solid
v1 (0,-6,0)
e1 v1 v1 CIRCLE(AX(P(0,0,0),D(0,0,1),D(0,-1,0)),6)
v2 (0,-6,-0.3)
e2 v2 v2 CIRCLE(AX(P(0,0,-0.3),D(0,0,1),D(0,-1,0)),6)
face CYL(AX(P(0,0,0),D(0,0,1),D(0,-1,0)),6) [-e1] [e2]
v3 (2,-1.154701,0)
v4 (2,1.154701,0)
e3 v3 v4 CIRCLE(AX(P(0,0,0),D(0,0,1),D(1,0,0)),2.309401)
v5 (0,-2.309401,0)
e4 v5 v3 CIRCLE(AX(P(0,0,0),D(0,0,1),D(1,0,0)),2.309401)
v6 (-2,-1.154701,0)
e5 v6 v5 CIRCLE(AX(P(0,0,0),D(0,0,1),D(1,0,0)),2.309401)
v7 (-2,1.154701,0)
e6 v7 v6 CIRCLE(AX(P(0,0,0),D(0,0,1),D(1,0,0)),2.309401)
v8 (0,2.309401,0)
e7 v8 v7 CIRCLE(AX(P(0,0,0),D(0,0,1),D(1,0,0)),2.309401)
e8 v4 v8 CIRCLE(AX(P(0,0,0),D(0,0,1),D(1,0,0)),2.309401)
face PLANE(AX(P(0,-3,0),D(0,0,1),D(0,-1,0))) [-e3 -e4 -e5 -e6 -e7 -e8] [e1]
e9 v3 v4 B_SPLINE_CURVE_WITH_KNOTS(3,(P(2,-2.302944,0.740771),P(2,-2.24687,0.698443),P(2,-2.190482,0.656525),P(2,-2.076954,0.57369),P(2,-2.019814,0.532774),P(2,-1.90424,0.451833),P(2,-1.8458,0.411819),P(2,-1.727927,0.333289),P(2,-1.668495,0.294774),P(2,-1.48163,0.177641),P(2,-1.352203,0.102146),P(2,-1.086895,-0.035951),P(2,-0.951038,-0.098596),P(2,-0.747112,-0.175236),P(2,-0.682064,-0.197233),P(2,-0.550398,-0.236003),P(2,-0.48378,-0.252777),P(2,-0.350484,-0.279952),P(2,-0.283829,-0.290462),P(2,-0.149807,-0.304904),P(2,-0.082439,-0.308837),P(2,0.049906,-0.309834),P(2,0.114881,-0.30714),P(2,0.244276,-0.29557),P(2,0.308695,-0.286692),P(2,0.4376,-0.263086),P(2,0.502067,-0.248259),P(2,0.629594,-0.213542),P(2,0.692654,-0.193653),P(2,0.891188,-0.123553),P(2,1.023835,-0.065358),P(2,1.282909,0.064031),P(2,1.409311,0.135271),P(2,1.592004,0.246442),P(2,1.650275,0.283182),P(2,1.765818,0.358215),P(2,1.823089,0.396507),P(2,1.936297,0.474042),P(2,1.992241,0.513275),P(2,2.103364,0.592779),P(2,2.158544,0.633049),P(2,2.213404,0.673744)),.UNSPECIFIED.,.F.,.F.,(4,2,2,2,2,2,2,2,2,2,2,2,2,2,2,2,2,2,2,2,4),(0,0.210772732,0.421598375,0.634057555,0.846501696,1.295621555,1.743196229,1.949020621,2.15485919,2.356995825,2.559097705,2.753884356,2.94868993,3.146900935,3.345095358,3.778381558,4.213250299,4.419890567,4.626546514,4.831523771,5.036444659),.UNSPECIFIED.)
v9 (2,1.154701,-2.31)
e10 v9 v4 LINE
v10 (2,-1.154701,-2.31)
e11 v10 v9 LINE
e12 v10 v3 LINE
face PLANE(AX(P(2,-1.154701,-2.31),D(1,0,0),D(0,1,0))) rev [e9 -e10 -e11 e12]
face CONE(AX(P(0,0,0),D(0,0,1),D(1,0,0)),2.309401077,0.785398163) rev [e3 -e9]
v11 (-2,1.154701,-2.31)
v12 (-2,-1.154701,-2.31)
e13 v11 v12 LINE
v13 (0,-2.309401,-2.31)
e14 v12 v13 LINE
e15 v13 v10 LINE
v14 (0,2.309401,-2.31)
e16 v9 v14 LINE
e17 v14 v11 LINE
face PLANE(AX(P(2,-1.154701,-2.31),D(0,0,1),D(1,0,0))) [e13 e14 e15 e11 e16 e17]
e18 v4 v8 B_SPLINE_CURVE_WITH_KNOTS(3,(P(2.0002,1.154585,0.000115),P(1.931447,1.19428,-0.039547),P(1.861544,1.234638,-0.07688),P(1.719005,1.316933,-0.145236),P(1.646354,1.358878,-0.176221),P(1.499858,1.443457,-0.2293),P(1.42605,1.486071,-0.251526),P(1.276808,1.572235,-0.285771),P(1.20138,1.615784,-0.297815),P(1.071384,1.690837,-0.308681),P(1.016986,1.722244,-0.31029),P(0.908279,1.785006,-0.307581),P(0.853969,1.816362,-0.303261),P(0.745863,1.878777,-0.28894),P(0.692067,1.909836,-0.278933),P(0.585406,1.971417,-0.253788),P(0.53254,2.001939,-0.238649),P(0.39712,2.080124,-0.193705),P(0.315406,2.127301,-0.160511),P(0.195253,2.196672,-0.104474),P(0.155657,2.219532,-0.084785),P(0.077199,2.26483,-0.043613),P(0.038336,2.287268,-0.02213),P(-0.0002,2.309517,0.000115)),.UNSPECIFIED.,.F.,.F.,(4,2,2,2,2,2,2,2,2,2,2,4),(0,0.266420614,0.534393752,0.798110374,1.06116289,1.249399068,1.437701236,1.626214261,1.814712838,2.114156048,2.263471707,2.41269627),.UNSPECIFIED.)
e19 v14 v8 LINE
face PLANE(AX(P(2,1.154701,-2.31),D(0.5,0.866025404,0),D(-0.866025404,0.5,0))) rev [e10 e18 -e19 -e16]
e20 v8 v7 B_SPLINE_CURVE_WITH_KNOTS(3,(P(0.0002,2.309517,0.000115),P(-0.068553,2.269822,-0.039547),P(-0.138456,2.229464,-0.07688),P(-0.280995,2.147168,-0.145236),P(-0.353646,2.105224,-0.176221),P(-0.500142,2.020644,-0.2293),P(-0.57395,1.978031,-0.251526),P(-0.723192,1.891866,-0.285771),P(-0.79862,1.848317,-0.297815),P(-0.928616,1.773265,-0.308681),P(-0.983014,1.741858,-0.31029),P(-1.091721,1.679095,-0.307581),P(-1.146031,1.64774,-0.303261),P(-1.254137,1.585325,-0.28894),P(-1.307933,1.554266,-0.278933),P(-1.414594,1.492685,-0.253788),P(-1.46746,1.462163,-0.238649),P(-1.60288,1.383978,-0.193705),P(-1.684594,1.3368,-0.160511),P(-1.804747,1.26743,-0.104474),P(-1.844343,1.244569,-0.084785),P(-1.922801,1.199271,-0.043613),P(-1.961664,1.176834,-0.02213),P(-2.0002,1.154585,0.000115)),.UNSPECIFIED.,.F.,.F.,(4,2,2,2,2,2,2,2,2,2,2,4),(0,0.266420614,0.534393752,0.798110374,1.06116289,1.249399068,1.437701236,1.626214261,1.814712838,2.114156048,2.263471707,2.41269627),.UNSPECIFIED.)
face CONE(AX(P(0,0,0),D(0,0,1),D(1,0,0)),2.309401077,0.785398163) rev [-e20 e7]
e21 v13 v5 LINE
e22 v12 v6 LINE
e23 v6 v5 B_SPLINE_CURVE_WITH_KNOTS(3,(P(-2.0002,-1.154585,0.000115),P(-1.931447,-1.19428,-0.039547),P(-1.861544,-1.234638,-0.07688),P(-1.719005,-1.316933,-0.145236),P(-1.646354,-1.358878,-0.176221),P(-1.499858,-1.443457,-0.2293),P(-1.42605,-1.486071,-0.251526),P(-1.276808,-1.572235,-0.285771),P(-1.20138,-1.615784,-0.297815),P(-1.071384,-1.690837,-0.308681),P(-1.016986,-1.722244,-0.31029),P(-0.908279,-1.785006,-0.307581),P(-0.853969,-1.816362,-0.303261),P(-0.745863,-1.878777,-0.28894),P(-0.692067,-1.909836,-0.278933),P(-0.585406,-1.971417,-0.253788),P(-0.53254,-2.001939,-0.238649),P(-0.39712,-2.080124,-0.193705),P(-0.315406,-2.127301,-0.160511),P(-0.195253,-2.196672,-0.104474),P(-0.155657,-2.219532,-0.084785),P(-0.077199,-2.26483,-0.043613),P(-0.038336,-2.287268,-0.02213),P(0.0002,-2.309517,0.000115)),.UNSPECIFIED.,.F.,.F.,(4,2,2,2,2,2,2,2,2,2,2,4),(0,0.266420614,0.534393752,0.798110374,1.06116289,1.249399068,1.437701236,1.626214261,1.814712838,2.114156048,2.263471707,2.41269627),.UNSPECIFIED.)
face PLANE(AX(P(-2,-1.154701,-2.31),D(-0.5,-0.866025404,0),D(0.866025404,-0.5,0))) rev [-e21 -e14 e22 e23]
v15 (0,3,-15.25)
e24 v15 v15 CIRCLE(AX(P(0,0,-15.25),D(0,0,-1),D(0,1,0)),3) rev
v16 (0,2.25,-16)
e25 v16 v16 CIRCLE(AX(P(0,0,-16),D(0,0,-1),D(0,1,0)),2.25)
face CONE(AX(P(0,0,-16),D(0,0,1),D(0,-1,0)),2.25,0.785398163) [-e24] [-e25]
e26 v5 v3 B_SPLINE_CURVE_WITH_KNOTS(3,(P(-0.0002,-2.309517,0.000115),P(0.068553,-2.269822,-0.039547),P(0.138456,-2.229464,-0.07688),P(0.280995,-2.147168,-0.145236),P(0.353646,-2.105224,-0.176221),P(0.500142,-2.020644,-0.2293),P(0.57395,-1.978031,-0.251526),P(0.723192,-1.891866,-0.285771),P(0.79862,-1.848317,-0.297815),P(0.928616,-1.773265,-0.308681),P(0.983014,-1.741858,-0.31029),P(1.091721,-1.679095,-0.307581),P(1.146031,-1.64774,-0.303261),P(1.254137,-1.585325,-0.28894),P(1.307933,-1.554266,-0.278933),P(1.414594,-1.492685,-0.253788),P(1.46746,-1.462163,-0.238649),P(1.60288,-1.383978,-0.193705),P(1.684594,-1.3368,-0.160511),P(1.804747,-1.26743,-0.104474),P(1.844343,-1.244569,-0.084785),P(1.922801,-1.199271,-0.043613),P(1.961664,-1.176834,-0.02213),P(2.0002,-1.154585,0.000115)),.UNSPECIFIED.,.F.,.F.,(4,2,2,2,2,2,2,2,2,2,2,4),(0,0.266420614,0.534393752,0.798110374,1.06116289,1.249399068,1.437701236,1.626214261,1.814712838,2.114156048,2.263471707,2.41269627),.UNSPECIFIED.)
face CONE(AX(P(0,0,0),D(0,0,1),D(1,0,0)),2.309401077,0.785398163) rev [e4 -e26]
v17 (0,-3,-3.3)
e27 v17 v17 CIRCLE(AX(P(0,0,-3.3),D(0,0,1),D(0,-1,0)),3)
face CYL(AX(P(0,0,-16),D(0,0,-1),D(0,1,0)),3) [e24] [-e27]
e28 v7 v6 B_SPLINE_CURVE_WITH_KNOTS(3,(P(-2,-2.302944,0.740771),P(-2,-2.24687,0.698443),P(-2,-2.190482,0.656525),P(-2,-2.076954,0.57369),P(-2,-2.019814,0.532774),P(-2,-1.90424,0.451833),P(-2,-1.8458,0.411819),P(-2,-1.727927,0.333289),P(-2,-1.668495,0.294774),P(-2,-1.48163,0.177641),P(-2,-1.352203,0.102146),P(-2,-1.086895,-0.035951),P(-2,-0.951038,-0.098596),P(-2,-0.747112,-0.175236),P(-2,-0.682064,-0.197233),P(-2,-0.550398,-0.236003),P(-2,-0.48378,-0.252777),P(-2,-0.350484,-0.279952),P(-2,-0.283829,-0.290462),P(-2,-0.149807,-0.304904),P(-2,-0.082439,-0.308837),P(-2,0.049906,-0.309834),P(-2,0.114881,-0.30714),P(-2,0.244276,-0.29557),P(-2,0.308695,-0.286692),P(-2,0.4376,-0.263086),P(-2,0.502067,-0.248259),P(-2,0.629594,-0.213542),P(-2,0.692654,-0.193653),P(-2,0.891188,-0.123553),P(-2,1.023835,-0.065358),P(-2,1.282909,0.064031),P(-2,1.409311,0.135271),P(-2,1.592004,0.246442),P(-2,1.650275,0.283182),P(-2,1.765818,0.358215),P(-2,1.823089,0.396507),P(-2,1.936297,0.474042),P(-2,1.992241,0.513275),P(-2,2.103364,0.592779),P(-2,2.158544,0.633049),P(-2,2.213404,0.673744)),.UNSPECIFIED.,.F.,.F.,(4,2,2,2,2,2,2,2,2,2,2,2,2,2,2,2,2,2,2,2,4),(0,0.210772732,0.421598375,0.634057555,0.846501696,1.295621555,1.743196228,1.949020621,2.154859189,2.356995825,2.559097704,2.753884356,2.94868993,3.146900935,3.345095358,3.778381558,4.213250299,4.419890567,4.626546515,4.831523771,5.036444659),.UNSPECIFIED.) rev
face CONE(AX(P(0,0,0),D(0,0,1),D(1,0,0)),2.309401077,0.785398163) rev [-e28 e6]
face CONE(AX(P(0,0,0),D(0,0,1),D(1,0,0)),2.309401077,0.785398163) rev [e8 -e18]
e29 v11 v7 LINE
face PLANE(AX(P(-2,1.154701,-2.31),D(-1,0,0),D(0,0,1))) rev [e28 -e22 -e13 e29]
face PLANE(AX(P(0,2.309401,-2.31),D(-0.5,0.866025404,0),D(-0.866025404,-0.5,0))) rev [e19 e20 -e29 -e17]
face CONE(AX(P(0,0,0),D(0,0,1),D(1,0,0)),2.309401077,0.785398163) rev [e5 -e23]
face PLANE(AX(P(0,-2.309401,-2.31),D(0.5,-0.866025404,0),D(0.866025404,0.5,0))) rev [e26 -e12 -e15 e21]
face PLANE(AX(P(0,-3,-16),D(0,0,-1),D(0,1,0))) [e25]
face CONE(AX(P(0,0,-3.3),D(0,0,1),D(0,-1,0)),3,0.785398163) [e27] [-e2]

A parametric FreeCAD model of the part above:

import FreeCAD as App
import Part
import Sketcher
Q = App.Units.Quantity


def edges_at(feature, points):
    """Names of the edges that pass closest to the given points."""
    edges = feature.Shape.Edges
    near = lambda p: min(range(len(edges)), key=lambda i: edges[i].distToShape(Part.Vertex(*p))[0])
    return sorted({f"Edge{near(p) + 1}" for p in points})

doc = App.newDocument("Part")
body = doc.addObject("PartDesign::Body", "Body")

sketch1 = body.newObject("Sketcher::SketchObject", "Sketch")
sketch1.AttachmentSupport = (doc.getObject("YZ_Plane"), [""])
sketch1.MapMode = "FlatFace"
sketch1.addGeometry([
    Part.LineSegment(App.Vector(3, 0, 0), App.Vector(0, 0, 0)),
    Part.LineSegment(App.Vector(0, 0, 0), App.Vector(0, -16, 0)),
    Part.LineSegment(App.Vector(0, -16, 0), App.Vector(3, -16, 0)),
    Part.LineSegment(App.Vector(3, -16, 0), App.Vector(3, 0, 0)),
], False)
sketch1.addConstraint([
    Sketcher.Constraint("Coincident", 0, 2, 1, 1),
    Sketcher.Constraint("Coincident", 1, 2, 2, 1),
    Sketcher.Constraint("Coincident", 2, 2, 3, 1),
    Sketcher.Constraint("Coincident", 3, 2, 0, 1),
    Sketcher.Constraint("Horizontal", 0),
    Sketcher.Constraint("Vertical", 1),
    Sketcher.Constraint("Horizontal", 2),
    Sketcher.Constraint("Vertical", 3),
    Sketcher.Constraint("Coincident", 0, 2, -1, 1),
    Sketcher.Constraint("DistanceX", 0, 2, 0, 1, Q("3 mm")),
    Sketcher.Constraint("DistanceY", 1, 2, 1, 1, Q("16 mm")),
])
revolution = body.newObject("PartDesign::Revolution", "Revolution")
revolution.Profile = sketch1
revolution.ReferenceAxis = (sketch1, ["V_Axis"])
revolution.Angle = 360
doc.recompute()

chamfer = body.newObject("PartDesign::Chamfer", "Chamfer")
chamfer.Base = (revolution, edges_at(revolution, [(0, -3, -16)]))
chamfer.Size = 0.75

sketch2 = body.newObject("Sketcher::SketchObject", "Sketch001")
sketch2.AttachmentSupport = (doc.getObject("YZ_Plane"), [""])
sketch2.MapMode = "FlatFace"
sketch2.addGeometry([
    Part.LineSegment(App.Vector(6, -0.3, 0), App.Vector(6, 0, 0)),
    Part.LineSegment(App.Vector(6, 0, 0), App.Vector(0, 0, 0)),
    Part.LineSegment(App.Vector(0, 0, 0), App.Vector(0, -3.3, 0)),
    Part.LineSegment(App.Vector(0, -3.3, 0), App.Vector(3, -3.3, 0)),
    Part.LineSegment(App.Vector(3, -3.3, 0), App.Vector(6, -0.3, 0)),
], False)
sketch2.addConstraint([
    Sketcher.Constraint("Coincident", 0, 2, 1, 1),
    Sketcher.Constraint("Coincident", 1, 2, 2, 1),
    Sketcher.Constraint("Coincident", 2, 2, 3, 1),
    Sketcher.Constraint("Coincident", 3, 2, 4, 1),
    Sketcher.Constraint("Coincident", 4, 2, 0, 1),
    Sketcher.Constraint("Vertical", 0),
    Sketcher.Constraint("Horizontal", 1),
    Sketcher.Constraint("Vertical", 2),
    Sketcher.Constraint("Horizontal", 3),
    Sketcher.Constraint("Coincident", 1, 2, -1, 1),
    Sketcher.Constraint("DistanceX", 1, 2, 1, 1, Q("6 mm")),
    Sketcher.Constraint("DistanceX", 3, 1, 3, 2, Q("3 mm")),
    Sketcher.Constraint("Angle", 4, Q("45 deg")),
    Sketcher.Constraint("DistanceY", 0, 1, 0, 2, Q("0.3 mm")),
])
revolution2 = body.newObject("PartDesign::Revolution", "Revolution001")
revolution2.Profile = sketch2
revolution2.ReferenceAxis = (sketch2, ["V_Axis"])
revolution2.Angle = 360

sketch3 = body.newObject("Sketcher::SketchObject", "Sketch002")
sketch3.AttachmentSupport = (doc.getObject("YZ_Plane"), [""])
sketch3.MapMode = "FlatFace"
sketch3.addGeometry([
    Part.LineSegment(App.Vector(0, -3.3, 0), App.Vector(-3, -3.3, 0)),
    Part.LineSegment(App.Vector(-3, -3.3, 0), App.Vector(0, -6.3, 0)),
    Part.LineSegment(App.Vector(0, -6.3, 0), App.Vector(0, -3.3, 0)),
], False)
sketch3.addConstraint([
    Sketcher.Constraint("Coincident", 0, 2, 1, 1),
    Sketcher.Constraint("Coincident", 1, 2, 2, 1),
    Sketcher.Constraint("Coincident", 2, 2, 0, 1),
    Sketcher.Constraint("Horizontal", 0),
    Sketcher.Constraint("Vertical", 2),
    Sketcher.Constraint("PointOnObject", 1, 2, -2),
    Sketcher.Constraint("Equal", 0, 2),
    Sketcher.Constraint("DistanceX", 0, 2, 0, 1, Q("3 mm")),
    Sketcher.Constraint("DistanceY", 0, 2, -1, 1, Q("3.3 mm")),
])
revolution3 = body.newObject("PartDesign::Revolution", "Revolution002")
revolution3.Profile = sketch3
revolution3.ReferenceAxis = (sketch3, ["V_Axis"])
revolution3.Angle = 360

sketch4 = body.newObject("Sketcher::SketchObject", "Sketch003")
sketch4.AttachmentSupport = (doc.getObject("XY_Plane"), [""])
sketch4.MapMode = "FlatFace"
sketch4.addGeometry([
    Part.LineSegment(App.Vector(2, -1.154701, 0), App.Vector(2, 1.154701, 0)),
    Part.LineSegment(App.Vector(2, 1.154701, 0), App.Vector(0, 2.309401, 0)),
    Part.LineSegment(App.Vector(0, 2.309401, 0), App.Vector(-2, 1.154701, 0)),
    Part.LineSegment(App.Vector(-2, 1.154701, 0), App.Vector(-2, -1.154701, 0)),
    Part.LineSegment(App.Vector(-2, -1.154701, 0), App.Vector(0, -2.309401, 0)),
    Part.LineSegment(App.Vector(0, -2.309401, 0), App.Vector(2, -1.154701, 0)),
], False)
sketch4.addConstraint([
    Sketcher.Constraint("Coincident", 0, 2, 1, 1),
    Sketcher.Constraint("Coincident", 1, 2, 2, 1),
    Sketcher.Constraint("Coincident", 2, 2, 3, 1),
    Sketcher.Constraint("Coincident", 3, 2, 4, 1),
    Sketcher.Constraint("Coincident", 4, 2, 5, 1),
    Sketcher.Constraint("Coincident", 5, 2, 0, 1),
    Sketcher.Constraint("Vertical", 0),
    Sketcher.Constraint("Vertical", 3),
    Sketcher.Constraint("Symmetric", 0, 2, 3, 2, -1, 1),
    Sketcher.Constraint("Symmetric", 1, 2, 4, 2, -1, 1),
    Sketcher.Constraint("PointOnObject", 1, 2, -2),
    Sketcher.Constraint("Parallel", 2, 5),
    Sketcher.Constraint("Horizontal", 0, 2, 2, 2),
    Sketcher.Constraint("Angle", 1, Q("150 deg")),
    Sketcher.Constraint("DistanceX", -1, 1, 0, 2, Q("2 mm")),
    Sketcher.Constraint("DistanceY", 0, 1, 0, 2, Q("2.309401 mm")),
])
pocket1 = body.newObject("PartDesign::Pocket", "Pocket")
pocket1.Profile = sketch4
pocket1.Length = 2.31

sketch5 = body.newObject("Sketcher::SketchObject", "Sketch004")
sketch5.AttachmentSupport = (doc.getObject("YZ_Plane"), [""])
sketch5.MapMode = "FlatFace"
sketch5.addGeometry([
    Part.LineSegment(App.Vector(0, 0, 0), App.Vector(-2.309401, 0, 0)),
    Part.LineSegment(App.Vector(-2.309401, 0, 0), App.Vector(0, -2.309401, 0)),
    Part.LineSegment(App.Vector(0, -2.309401, 0), App.Vector(0, 0, 0)),
], False)
sketch5.addConstraint([
    Sketcher.Constraint("Coincident", 0, 2, 1, 1),
    Sketcher.Constraint("Coincident", 1, 2, 2, 1),
    Sketcher.Constraint("Coincident", 2, 2, 0, 1),
    Sketcher.Constraint("Horizontal", 0),
    Sketcher.Constraint("Vertical", 2),
    Sketcher.Constraint("Coincident", 2, 2, -1, 1),
    Sketcher.Constraint("Equal", 0, 2),
    Sketcher.Constraint("DistanceX", 0, 2, 0, 1, Q("2.309401 mm")),
])
groove = body.newObject("PartDesign::Groove", "Groove")
groove.Profile = sketch5
groove.ReferenceAxis = (sketch5, ["V_Axis"])
groove.Angle = 360

doc.recompute()
